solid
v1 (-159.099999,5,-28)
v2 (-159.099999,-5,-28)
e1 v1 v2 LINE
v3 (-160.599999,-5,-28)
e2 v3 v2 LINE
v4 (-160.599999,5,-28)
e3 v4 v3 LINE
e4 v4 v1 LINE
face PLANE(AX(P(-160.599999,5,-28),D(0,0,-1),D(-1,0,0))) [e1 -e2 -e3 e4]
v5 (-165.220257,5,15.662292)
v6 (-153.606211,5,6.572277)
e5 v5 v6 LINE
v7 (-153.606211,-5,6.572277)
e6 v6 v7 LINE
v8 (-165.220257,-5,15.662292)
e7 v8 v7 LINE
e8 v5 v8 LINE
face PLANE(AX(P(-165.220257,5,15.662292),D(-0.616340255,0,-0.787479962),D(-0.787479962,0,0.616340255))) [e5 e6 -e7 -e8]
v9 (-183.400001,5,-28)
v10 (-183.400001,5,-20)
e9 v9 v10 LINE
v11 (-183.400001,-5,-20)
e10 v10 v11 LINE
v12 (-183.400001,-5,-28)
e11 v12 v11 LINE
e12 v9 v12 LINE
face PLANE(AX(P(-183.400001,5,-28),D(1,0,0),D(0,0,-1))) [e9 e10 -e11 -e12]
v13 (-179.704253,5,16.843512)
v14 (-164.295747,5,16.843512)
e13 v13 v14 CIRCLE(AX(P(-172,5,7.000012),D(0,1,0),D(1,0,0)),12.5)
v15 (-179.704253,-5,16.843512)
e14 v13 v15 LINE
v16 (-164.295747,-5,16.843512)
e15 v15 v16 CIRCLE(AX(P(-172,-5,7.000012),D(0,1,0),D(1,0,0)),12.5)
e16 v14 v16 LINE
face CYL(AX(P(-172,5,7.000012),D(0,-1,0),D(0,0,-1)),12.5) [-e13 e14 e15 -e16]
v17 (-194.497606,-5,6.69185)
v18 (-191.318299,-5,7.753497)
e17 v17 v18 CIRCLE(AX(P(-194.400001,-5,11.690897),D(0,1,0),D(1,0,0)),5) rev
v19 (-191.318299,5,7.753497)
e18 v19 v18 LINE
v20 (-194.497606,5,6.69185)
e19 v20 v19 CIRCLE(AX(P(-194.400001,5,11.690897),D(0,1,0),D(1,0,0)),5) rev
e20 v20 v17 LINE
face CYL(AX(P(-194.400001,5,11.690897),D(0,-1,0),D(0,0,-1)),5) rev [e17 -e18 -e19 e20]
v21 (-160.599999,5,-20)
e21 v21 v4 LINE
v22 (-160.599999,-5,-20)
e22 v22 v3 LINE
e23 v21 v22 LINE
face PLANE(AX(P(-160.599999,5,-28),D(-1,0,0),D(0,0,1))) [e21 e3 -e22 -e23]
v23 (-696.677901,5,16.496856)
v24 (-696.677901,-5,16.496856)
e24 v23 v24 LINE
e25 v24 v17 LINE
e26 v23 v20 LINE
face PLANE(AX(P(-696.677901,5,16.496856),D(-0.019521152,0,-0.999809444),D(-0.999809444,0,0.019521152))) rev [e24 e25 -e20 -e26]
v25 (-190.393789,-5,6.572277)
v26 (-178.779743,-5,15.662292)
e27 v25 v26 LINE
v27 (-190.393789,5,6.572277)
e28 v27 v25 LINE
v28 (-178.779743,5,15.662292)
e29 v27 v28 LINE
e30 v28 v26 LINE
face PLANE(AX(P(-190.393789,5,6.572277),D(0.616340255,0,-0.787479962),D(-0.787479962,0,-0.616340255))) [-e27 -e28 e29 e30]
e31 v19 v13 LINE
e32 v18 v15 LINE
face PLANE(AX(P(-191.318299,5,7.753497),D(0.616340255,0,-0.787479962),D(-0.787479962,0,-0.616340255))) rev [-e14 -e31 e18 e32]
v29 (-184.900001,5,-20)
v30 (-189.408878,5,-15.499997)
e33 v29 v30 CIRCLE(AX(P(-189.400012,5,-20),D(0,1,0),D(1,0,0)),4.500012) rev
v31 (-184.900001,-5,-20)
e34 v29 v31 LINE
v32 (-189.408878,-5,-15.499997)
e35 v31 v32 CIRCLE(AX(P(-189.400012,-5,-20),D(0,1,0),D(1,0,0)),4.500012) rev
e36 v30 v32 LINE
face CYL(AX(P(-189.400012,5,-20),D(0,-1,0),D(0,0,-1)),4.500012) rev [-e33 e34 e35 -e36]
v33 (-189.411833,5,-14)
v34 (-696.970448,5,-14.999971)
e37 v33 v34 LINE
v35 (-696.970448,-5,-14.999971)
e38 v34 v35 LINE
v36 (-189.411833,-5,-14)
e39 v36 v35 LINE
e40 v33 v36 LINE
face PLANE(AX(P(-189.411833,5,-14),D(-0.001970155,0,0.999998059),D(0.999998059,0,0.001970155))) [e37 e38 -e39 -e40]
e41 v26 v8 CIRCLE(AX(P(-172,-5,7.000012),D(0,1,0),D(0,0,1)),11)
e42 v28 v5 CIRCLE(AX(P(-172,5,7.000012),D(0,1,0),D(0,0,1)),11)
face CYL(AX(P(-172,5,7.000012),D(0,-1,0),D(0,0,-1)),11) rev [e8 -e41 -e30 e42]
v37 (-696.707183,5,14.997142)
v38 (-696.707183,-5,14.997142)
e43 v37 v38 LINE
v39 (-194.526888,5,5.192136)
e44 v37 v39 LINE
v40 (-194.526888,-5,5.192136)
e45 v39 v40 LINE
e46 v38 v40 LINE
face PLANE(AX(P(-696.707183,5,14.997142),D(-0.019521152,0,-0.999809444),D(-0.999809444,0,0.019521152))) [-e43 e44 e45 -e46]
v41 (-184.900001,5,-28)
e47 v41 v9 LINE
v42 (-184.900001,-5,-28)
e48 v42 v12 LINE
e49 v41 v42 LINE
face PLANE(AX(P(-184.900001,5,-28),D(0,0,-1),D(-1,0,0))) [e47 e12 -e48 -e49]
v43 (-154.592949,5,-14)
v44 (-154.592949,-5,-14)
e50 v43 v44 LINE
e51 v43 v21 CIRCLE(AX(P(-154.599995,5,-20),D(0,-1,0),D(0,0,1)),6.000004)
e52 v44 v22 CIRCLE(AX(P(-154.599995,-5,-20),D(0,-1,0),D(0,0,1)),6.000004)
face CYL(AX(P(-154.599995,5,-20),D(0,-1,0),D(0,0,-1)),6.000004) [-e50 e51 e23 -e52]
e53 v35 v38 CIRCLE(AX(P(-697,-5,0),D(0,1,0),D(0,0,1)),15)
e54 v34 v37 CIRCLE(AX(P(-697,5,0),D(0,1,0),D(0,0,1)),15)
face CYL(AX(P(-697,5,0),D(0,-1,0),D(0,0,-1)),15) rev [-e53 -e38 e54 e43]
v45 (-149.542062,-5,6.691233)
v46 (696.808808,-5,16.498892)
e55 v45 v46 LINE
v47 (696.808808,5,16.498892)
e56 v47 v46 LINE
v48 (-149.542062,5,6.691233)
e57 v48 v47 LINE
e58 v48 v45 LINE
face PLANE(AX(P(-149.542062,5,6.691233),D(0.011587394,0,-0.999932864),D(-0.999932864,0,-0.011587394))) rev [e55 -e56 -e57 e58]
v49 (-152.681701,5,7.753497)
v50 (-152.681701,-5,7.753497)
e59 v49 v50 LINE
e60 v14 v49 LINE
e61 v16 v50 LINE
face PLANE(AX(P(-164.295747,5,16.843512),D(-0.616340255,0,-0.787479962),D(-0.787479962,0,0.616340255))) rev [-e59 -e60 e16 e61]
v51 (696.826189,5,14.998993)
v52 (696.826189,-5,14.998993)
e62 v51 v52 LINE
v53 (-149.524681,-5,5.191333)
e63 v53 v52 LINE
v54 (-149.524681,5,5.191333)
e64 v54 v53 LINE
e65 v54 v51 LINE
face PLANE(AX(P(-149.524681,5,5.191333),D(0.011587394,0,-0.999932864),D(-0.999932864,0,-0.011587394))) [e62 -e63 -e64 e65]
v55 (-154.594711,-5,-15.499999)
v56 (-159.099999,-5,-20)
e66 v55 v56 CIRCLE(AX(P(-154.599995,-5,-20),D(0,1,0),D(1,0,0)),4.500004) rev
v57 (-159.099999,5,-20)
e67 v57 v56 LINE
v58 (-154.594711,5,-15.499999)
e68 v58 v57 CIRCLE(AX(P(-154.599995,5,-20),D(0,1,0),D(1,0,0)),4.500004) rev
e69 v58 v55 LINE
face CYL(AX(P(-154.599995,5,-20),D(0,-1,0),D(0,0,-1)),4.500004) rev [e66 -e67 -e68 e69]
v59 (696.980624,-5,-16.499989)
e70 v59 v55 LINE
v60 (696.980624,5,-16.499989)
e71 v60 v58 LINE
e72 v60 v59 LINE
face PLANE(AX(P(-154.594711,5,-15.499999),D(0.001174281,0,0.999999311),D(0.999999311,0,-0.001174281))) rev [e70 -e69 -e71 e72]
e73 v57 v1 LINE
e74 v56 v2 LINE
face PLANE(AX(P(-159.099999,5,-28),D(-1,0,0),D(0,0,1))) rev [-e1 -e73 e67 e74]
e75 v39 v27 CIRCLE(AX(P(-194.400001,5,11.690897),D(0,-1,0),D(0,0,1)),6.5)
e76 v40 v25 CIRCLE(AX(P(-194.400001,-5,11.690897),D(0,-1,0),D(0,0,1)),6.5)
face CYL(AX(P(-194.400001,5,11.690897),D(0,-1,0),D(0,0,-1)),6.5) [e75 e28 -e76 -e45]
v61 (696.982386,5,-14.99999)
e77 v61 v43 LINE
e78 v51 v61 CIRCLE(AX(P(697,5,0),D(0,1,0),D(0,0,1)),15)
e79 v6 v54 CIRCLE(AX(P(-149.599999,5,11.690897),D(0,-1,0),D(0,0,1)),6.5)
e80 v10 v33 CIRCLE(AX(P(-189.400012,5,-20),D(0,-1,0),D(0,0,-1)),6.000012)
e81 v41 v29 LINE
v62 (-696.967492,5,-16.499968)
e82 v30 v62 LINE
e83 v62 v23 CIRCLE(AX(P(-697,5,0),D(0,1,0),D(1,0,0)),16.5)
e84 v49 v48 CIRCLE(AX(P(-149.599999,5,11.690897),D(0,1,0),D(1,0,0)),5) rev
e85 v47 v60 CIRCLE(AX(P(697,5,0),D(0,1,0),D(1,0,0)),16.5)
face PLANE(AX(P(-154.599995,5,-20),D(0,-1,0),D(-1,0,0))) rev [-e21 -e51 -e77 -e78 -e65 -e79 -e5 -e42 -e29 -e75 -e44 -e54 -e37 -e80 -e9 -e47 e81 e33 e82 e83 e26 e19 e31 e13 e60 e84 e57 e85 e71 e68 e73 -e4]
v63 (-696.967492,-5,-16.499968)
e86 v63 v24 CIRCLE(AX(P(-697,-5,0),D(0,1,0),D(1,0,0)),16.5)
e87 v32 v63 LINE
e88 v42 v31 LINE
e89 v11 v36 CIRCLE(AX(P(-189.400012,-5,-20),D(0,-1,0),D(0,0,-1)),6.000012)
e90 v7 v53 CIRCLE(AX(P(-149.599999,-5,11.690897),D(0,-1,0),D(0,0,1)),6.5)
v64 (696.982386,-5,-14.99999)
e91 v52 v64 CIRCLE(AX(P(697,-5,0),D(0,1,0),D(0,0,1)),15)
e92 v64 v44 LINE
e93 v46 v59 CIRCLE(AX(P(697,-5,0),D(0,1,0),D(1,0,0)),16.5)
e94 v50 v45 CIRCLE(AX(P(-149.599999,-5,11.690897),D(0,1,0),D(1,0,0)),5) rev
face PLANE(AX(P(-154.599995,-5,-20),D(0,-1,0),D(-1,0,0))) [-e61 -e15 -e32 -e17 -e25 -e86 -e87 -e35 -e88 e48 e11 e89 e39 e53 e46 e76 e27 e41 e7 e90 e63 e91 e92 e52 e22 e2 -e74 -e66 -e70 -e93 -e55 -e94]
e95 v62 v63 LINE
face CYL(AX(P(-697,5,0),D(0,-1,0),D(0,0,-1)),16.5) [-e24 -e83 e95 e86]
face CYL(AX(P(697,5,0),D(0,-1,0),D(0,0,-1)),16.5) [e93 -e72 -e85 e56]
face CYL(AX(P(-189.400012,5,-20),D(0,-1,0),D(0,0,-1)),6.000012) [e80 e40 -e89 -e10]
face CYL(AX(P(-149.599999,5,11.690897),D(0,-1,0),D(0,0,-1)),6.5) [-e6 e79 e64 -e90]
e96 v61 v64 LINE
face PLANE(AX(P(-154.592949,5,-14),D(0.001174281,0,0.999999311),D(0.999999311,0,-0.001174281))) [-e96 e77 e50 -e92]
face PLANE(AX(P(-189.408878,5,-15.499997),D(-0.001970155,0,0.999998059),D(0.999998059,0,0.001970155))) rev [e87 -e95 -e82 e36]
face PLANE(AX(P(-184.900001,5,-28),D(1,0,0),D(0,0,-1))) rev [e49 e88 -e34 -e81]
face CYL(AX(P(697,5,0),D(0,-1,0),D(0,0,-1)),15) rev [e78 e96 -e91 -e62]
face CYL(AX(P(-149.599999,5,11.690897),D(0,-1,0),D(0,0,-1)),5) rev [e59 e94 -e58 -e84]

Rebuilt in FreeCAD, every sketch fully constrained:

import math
import FreeCAD as App
import Part
import Sketcher
from FreeCAD import Vector
Q = App.Units.Quantity

doc = App.newDocument("Part")
body = doc.addObject("PartDesign::Body", "Body")

# Sketch on XZ plane
sketch1 = body.newObject("Sketcher::SketchObject", "Sketch")
sketch1.AttachmentSupport = (doc.getObject("XZ_Plane"), [""])
sketch1.MapMode = "FlatFace"
sketch1.addGeometry(Part.LineSegment(Vector(-183.400001, -20, 0), Vector(-183.400001, -28, 0)), False)
sketch1.addGeometry(Part.LineSegment(Vector(-183.400001, -28, 0), Vector(-184.900001, -28, 0)), False)
sketch1.addGeometry(Part.LineSegment(Vector(-184.900001, -28, 0), Vector(-184.900001, -20, 0)), False)
sketch1.addGeometry(Part.ArcOfCircle(Part.Circle(Vector(-189.400012, -20, 0), Vector(0, 0, 1), 4.500012), math.radians(0), math.radians(90.112882)), False)
sketch1.addGeometry(Part.LineSegment(Vector(-189.408878, -15.499997, 0), Vector(-696.967492, -16.499968, 0)), False)
sketch1.addGeometry(Part.ArcOfCircle(Part.Circle(Vector(-697, 0, 0), Vector(0, 0, 1), 16.5), math.radians(88.881449), math.radians(270.112882)), False)
sketch1.addGeometry(Part.LineSegment(Vector(-696.677901, 16.496856, 0), Vector(-194.497606, 6.69185, 0)), False)
sketch1.addGeometry(Part.ArcOfCircle(Part.Circle(Vector(-194.400001, 11.690897, 0), Vector(0, 0, 1), 5), math.radians(-91.118551), math.radians(-51.95063)), False)
sketch1.addGeometry(Part.LineSegment(Vector(-191.318299, 7.753497, 0), Vector(-179.704253, 16.843512, 0)), False)
sketch1.addGeometry(Part.ArcOfCircle(Part.Circle(Vector(-172, 7.000012, 0), Vector(0, 0, 1), 12.5), math.radians(51.95063), math.radians(128.04937)), False)
sketch1.addGeometry(Part.LineSegment(Vector(-164.295747, 16.843512, 0), Vector(-152.681701, 7.753497, 0)), False)
sketch1.addGeometry(Part.ArcOfCircle(Part.Circle(Vector(-149.599999, 11.690897, 0), Vector(0, 0, 1), 5), math.radians(-128.04937), math.radians(-89.336076)), False)
sketch1.addGeometry(Part.LineSegment(Vector(-149.542062, 6.691233, 0), Vector(696.808808, 16.498892, 0)), False)
sketch1.addGeometry(Part.ArcOfCircle(Part.Circle(Vector(697, 0, 0), Vector(0, 0, 1), 16.5), math.radians(-90.067281), math.radians(90.663924)), False)
sketch1.addGeometry(Part.LineSegment(Vector(696.980624, -16.499989, 0), Vector(-154.594711, -15.499999, 0)), False)
sketch1.addGeometry(Part.ArcOfCircle(Part.Circle(Vector(-154.599995, -20, 0), Vector(0, 0, 1), 4.500004), math.radians(89.932719), math.radians(180)), False)
sketch1.addGeometry(Part.LineSegment(Vector(-159.099999, -20, 0), Vector(-159.099999, -28, 0)), False)
sketch1.addGeometry(Part.LineSegment(Vector(-159.099999, -28, 0), Vector(-160.599999, -28, 0)), False)
sketch1.addGeometry(Part.LineSegment(Vector(-160.599999, -28, 0), Vector(-160.599999, -20, 0)), False)
sketch1.addGeometry(Part.ArcOfCircle(Part.Circle(Vector(-154.599995, -20, 0), Vector(0, 0, 1), 6.000004), math.radians(89.932719), math.radians(180)), False)
sketch1.addGeometry(Part.LineSegment(Vector(-154.592949, -14, 0), Vector(696.982386, -14.99999, 0)), False)
sketch1.addGeometry(Part.ArcOfCircle(Part.Circle(Vector(697, 0, 0), Vector(0, 0, 1), 15), math.radians(-90.067281), math.radians(90.663924)), False)
sketch1.addGeometry(Part.LineSegment(Vector(696.826189, 14.998993, 0), Vector(-149.524681, 5.191333, 0)), False)
sketch1.addGeometry(Part.ArcOfCircle(Part.Circle(Vector(-149.599999, 11.690897, 0), Vector(0, 0, 1), 6.5), math.radians(-128.04937), math.radians(-89.336076)), False)
sketch1.addGeometry(Part.LineSegment(Vector(-153.606211, 6.572277, 0), Vector(-165.220257, 15.662292, 0)), False)
sketch1.addGeometry(Part.ArcOfCircle(Part.Circle(Vector(-172, 7.000012, 0), Vector(0, 0, 1), 11), math.radians(51.95063), math.radians(128.04937)), False)
sketch1.addGeometry(Part.LineSegment(Vector(-178.779743, 15.662292, 0), Vector(-190.393789, 6.572277, 0)), False)
sketch1.addGeometry(Part.ArcOfCircle(Part.Circle(Vector(-194.400001, 11.690897, 0), Vector(0, 0, 1), 6.5), math.radians(-91.118551), math.radians(-51.95063)), False)
sketch1.addGeometry(Part.LineSegment(Vector(-194.526888, 5.192136, 0), Vector(-696.707183, 14.997142, 0)), False)
sketch1.addGeometry(Part.ArcOfCircle(Part.Circle(Vector(-697, 0, 0), Vector(0, 0, 1), 15), math.radians(88.881449), math.radians(270.112882)), False)
sketch1.addGeometry(Part.LineSegment(Vector(-696.970448, -14.999971, 0), Vector(-189.411833, -14, 0)), False)
sketch1.addGeometry(Part.ArcOfCircle(Part.Circle(Vector(-189.400012, -20, 0), Vector(0, 0, 1), 6.000012), math.radians(0), math.radians(90.112882)), False)
sketch1.addConstraint(Sketcher.Constraint("Coincident", 0, 2, 1, 1))
sketch1.addConstraint(Sketcher.Constraint("Coincident", 1, 2, 2, 1))
sketch1.addConstraint(Sketcher.Constraint("Tangent", 2, 2, 3, 1))
sketch1.addConstraint(Sketcher.Constraint("Tangent", 3, 2, 4, 1))
sketch1.addConstraint(Sketcher.Constraint("Tangent", 4, 2, 5, 2))
sketch1.addConstraint(Sketcher.Constraint("Tangent", 5, 1, 6, 1))
sketch1.addConstraint(Sketcher.Constraint("Tangent", 6, 2, 7, 1))
sketch1.addConstraint(Sketcher.Constraint("Tangent", 7, 2, 8, 1))
sketch1.addConstraint(Sketcher.Constraint("Tangent", 8, 2, 9, 2))
sketch1.addConstraint(Sketcher.Constraint("Tangent", 9, 1, 10, 1))
sketch1.addConstraint(Sketcher.Constraint("Tangent", 10, 2, 11, 1))
sketch1.addConstraint(Sketcher.Constraint("Tangent", 11, 2, 12, 1))
sketch1.addConstraint(Sketcher.Constraint("Tangent", 12, 2, 13, 2))
sketch1.addConstraint(Sketcher.Constraint("Tangent", 13, 1, 14, 1))
sketch1.addConstraint(Sketcher.Constraint("Tangent", 14, 2, 15, 1))
sketch1.addConstraint(Sketcher.Constraint("Tangent", 15, 2, 16, 1))
sketch1.addConstraint(Sketcher.Constraint("Coincident", 16, 2, 17, 1))
sketch1.addConstraint(Sketcher.Constraint("Coincident", 17, 2, 18, 1))
sketch1.addConstraint(Sketcher.Constraint("Tangent", 18, 2, 19, 2))
sketch1.addConstraint(Sketcher.Constraint("Tangent", 19, 1, 20, 1))
sketch1.addConstraint(Sketcher.Constraint("Tangent", 20, 2, 21, 1))
sketch1.addConstraint(Sketcher.Constraint("Tangent", 21, 2, 22, 1))
sketch1.addConstraint(Sketcher.Constraint("Tangent", 22, 2, 23, 2))
sketch1.addConstraint(Sketcher.Constraint("Tangent", 23, 1, 24, 1))
sketch1.addConstraint(Sketcher.Constraint("Tangent", 24, 2, 25, 1))
sketch1.addConstraint(Sketcher.Constraint("Tangent", 25, 2, 26, 1))
sketch1.addConstraint(Sketcher.Constraint("Tangent", 26, 2, 27, 2))
sketch1.addConstraint(Sketcher.Constraint("Tangent", 27, 1, 28, 1))
sketch1.addConstraint(Sketcher.Constraint("Tangent", 28, 2, 29, 1))
sketch1.addConstraint(Sketcher.Constraint("Tangent", 29, 2, 30, 1))
sketch1.addConstraint(Sketcher.Constraint("Tangent", 30, 2, 31, 2))
sketch1.addConstraint(Sketcher.Constraint("Tangent", 31, 1, 0, 1))
sketch1.addConstraint(Sketcher.Constraint("Vertical", 0))
sketch1.addConstraint(Sketcher.Constraint("Horizontal", 1))
sketch1.addConstraint(Sketcher.Constraint("Vertical", 2))
sketch1.addConstraint(Sketcher.Constraint("Vertical", 16))
sketch1.addConstraint(Sketcher.Constraint("Horizontal", 17))
sketch1.addConstraint(Sketcher.Constraint("Vertical", 18))
sketch1.addConstraint(Sketcher.Constraint("Coincident", 19, 3, 15, 3))
sketch1.addConstraint(Sketcher.Constraint("Coincident", 21, 3, 13, 3))
sketch1.addConstraint(Sketcher.Constraint("Coincident", 23, 3, 11, 3))
sketch1.addConstraint(Sketcher.Constraint("Coincident", 25, 3, 9, 3))
sketch1.addConstraint(Sketcher.Constraint("Coincident", 27, 3, 7, 3))
sketch1.addConstraint(Sketcher.Constraint("Coincident", 29, 3, 5, 3))
sketch1.addConstraint(Sketcher.Constraint("Coincident", 31, 3, 3, 3))
sketch1.addConstraint(Sketcher.Constraint("Equal", 7, 11))
sketch1.addConstraint(Sketcher.Constraint("Equal", 5, 13))
sketch1.addConstraint(Sketcher.Constraint("Equal", 23, 27))
sketch1.addConstraint(Sketcher.Constraint("Equal", 21, 29))
sketch1.addConstraint(Sketcher.Constraint("Symmetric", 5, 3, 13, 3, -1, 1))
sketch1.addConstraint(Sketcher.Constraint("PointOnObject", 5, 3, -1))
sketch1.addConstraint(Sketcher.Constraint("Parallel", 14, 20))
sketch1.addConstraint(Sketcher.Constraint("Parallel", 12, 22))
sketch1.addConstraint(Sketcher.Constraint("Parallel", 10, 24))
sketch1.addConstraint(Sketcher.Constraint("Parallel", 4, 30))
sketch1.addConstraint(Sketcher.Constraint("Horizontal", 7, 3, 11, 3))
sketch1.addConstraint(Sketcher.Constraint("Horizontal", 3, 3, 15, 3))
sketch1.addConstraint(Sketcher.Constraint("Horizontal", 8, 2, 9, 1))
sketch1.addConstraint(Sketcher.Constraint("Horizontal", 3, 2, 14, 2))
sketch1.addConstraint(Sketcher.Constraint("Horizontal", 1, 2, 16, 2))
sketch1.addConstraint(Sketcher.Constraint("Radius", 7, Q("5 mm")))
sketch1.addConstraint(Sketcher.Constraint("Radius", 21, Q("15 mm")))
sketch1.addConstraint(Sketcher.Constraint("Radius", 25, Q("11 mm")))
sketch1.addConstraint(Sketcher.Constraint("Radius", 5, Q("16.5 mm")))
sketch1.addConstraint(Sketcher.Constraint("DistanceY", 0, 2, 0, 1, Q("8 mm")))
sketch1.addConstraint(Sketcher.Constraint("DistanceY", 3, 3, -1, 1, Q("20 mm")))
sketch1.addConstraint(Sketcher.Constraint("DistanceX", 5, 3, -1, 1, Q("697 mm")))
sketch1.addConstraint(Sketcher.Constraint("DistanceX", 9, 3, -1, 1, Q("172 mm")))
sketch1.addConstraint(Sketcher.Constraint("DistanceY", 19, 1, -1, 1, Q("14 mm")))
sketch1.addConstraint(Sketcher.Constraint("DistanceX", 7, 3, -1, 1, Q("194.400001 mm")))
sketch1.addConstraint(Sketcher.Constraint("DistanceX", 0, 2, -1, 1, Q("183.400001 mm")))
sketch1.addConstraint(Sketcher.Constraint("DistanceX", 15, 2, -1, 1, Q("159.099999 mm")))
sketch1.addConstraint(Sketcher.Constraint("DistanceX", 7, 2, -1, 1, Q("191.318299 mm")))
sketch1.addConstraint(Sketcher.Constraint("DistanceY", -1, 1, 6, 2, Q("6.69185 mm")))
pad1 = body.newObject("PartDesign::Pad", "Pad")
pad1.Profile = sketch1
pad1.Length = 10
pad1.Midplane = True

doc.recompute()
